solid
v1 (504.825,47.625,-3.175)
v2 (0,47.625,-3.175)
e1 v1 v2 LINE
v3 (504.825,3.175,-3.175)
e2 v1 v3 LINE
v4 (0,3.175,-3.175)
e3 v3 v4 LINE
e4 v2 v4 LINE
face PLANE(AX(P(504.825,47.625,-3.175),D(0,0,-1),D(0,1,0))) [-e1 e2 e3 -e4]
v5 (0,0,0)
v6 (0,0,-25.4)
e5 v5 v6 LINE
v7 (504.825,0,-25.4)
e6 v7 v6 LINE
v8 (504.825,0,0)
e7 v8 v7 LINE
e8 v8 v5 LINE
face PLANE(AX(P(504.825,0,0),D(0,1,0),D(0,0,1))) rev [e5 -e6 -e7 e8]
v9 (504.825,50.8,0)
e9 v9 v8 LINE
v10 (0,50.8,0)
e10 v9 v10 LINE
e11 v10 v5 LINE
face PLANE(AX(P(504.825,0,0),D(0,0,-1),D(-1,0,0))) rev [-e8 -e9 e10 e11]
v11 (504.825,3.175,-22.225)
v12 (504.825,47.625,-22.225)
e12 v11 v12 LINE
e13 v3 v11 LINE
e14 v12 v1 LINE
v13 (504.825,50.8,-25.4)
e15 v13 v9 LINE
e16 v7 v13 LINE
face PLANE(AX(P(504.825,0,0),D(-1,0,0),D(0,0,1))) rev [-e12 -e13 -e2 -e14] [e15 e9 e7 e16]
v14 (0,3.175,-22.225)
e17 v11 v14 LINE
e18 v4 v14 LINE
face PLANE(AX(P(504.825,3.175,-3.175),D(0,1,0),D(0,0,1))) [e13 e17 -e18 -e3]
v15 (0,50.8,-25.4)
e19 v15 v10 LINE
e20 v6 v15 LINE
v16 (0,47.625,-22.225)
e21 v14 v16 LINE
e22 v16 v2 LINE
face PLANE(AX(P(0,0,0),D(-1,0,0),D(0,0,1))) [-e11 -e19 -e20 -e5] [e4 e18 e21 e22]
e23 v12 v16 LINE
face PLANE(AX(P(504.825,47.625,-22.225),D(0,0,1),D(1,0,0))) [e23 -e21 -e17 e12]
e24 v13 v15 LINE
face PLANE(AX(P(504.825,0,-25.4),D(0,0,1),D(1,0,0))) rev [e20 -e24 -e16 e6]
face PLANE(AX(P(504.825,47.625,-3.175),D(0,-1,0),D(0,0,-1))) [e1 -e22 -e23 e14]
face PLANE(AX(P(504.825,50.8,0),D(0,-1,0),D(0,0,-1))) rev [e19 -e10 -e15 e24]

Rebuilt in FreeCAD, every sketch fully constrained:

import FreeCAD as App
import Part
import Sketcher
from FreeCAD import Vector
Q = App.Units.Quantity

doc = App.newDocument("Part")
body = doc.addObject("PartDesign::Body", "Body")

# Sketch on YZ plane
sketch1 = body.newObject("Sketcher::SketchObject", "Sketch")
sketch1.AttachmentSupport = (doc.getObject("YZ_Plane"), [""])
sketch1.MapMode = "FlatFace"
sketch1.addGeometry([
    Part.LineSegment(Vector(51, 0, 0), Vector(0, 0, 0)),  # 0
    Part.LineSegment(Vector(0, 0, 0), Vector(0, -25, 0)),  # 1
    Part.LineSegment(Vector(0, -25, 0), Vector(51, -25, 0)),  # 2
    Part.LineSegment(Vector(51, -25, 0), Vector(51, 0, 0)),  # 3
    Part.LineSegment(Vector(3, -22, 0), Vector(3, -3, 0)),  # 4
    Part.LineSegment(Vector(3, -3, 0), Vector(48, -3, 0)),  # 5
    Part.LineSegment(Vector(48, -3, 0), Vector(48, -22, 0)),  # 6
    Part.LineSegment(Vector(48, -22, 0), Vector(3, -22, 0)),  # 7
], False)
sketch1.addConstraint([
    Sketcher.Constraint("Coincident", 0, 2, 1, 1),
    Sketcher.Constraint("Coincident", 1, 2, 2, 1),
    Sketcher.Constraint("Coincident", 2, 2, 3, 1),
    Sketcher.Constraint("Coincident", 3, 2, 0, 1),
    Sketcher.Constraint("Coincident", 4, 2, 5, 1),
    Sketcher.Constraint("Coincident", 5, 2, 6, 1),
    Sketcher.Constraint("Coincident", 6, 2, 7, 1),
    Sketcher.Constraint("Coincident", 7, 2, 4, 1),
    Sketcher.Constraint("Horizontal", 0),
    Sketcher.Constraint("Vertical", 1),
    Sketcher.Constraint("Horizontal", 2),
    Sketcher.Constraint("Vertical", 3),
    Sketcher.Constraint("Vertical", 4),
    Sketcher.Constraint("Horizontal", 5),
    Sketcher.Constraint("Vertical", 6),
    Sketcher.Constraint("Horizontal", 7),
    Sketcher.Constraint("Coincident", 0, 2, -1, 1),
    Sketcher.Constraint("DistanceX", 0, 2, 0, 1, Q("2 in")),
    Sketcher.Constraint("DistanceY", 1, 2, 1, 1, Q("1 in")),
    Sketcher.Constraint("DistanceX", 5, 1, 5, 2, Q("1.75 in")),
    Sketcher.Constraint("DistanceY", 4, 1, 4, 2, Q("0.75 in")),
    Sketcher.Constraint("DistanceX", -1, 1, 4, 2, Q("0.125 in")),
    Sketcher.Constraint("DistanceY", 4, 2, -1, 1, Q("0.125 in")),
])
pad1 = body.newObject("PartDesign::Pad", "Pad")
pad1.Profile = sketch1
pad1.Length = Q("19.875 in")

doc.recompute()
